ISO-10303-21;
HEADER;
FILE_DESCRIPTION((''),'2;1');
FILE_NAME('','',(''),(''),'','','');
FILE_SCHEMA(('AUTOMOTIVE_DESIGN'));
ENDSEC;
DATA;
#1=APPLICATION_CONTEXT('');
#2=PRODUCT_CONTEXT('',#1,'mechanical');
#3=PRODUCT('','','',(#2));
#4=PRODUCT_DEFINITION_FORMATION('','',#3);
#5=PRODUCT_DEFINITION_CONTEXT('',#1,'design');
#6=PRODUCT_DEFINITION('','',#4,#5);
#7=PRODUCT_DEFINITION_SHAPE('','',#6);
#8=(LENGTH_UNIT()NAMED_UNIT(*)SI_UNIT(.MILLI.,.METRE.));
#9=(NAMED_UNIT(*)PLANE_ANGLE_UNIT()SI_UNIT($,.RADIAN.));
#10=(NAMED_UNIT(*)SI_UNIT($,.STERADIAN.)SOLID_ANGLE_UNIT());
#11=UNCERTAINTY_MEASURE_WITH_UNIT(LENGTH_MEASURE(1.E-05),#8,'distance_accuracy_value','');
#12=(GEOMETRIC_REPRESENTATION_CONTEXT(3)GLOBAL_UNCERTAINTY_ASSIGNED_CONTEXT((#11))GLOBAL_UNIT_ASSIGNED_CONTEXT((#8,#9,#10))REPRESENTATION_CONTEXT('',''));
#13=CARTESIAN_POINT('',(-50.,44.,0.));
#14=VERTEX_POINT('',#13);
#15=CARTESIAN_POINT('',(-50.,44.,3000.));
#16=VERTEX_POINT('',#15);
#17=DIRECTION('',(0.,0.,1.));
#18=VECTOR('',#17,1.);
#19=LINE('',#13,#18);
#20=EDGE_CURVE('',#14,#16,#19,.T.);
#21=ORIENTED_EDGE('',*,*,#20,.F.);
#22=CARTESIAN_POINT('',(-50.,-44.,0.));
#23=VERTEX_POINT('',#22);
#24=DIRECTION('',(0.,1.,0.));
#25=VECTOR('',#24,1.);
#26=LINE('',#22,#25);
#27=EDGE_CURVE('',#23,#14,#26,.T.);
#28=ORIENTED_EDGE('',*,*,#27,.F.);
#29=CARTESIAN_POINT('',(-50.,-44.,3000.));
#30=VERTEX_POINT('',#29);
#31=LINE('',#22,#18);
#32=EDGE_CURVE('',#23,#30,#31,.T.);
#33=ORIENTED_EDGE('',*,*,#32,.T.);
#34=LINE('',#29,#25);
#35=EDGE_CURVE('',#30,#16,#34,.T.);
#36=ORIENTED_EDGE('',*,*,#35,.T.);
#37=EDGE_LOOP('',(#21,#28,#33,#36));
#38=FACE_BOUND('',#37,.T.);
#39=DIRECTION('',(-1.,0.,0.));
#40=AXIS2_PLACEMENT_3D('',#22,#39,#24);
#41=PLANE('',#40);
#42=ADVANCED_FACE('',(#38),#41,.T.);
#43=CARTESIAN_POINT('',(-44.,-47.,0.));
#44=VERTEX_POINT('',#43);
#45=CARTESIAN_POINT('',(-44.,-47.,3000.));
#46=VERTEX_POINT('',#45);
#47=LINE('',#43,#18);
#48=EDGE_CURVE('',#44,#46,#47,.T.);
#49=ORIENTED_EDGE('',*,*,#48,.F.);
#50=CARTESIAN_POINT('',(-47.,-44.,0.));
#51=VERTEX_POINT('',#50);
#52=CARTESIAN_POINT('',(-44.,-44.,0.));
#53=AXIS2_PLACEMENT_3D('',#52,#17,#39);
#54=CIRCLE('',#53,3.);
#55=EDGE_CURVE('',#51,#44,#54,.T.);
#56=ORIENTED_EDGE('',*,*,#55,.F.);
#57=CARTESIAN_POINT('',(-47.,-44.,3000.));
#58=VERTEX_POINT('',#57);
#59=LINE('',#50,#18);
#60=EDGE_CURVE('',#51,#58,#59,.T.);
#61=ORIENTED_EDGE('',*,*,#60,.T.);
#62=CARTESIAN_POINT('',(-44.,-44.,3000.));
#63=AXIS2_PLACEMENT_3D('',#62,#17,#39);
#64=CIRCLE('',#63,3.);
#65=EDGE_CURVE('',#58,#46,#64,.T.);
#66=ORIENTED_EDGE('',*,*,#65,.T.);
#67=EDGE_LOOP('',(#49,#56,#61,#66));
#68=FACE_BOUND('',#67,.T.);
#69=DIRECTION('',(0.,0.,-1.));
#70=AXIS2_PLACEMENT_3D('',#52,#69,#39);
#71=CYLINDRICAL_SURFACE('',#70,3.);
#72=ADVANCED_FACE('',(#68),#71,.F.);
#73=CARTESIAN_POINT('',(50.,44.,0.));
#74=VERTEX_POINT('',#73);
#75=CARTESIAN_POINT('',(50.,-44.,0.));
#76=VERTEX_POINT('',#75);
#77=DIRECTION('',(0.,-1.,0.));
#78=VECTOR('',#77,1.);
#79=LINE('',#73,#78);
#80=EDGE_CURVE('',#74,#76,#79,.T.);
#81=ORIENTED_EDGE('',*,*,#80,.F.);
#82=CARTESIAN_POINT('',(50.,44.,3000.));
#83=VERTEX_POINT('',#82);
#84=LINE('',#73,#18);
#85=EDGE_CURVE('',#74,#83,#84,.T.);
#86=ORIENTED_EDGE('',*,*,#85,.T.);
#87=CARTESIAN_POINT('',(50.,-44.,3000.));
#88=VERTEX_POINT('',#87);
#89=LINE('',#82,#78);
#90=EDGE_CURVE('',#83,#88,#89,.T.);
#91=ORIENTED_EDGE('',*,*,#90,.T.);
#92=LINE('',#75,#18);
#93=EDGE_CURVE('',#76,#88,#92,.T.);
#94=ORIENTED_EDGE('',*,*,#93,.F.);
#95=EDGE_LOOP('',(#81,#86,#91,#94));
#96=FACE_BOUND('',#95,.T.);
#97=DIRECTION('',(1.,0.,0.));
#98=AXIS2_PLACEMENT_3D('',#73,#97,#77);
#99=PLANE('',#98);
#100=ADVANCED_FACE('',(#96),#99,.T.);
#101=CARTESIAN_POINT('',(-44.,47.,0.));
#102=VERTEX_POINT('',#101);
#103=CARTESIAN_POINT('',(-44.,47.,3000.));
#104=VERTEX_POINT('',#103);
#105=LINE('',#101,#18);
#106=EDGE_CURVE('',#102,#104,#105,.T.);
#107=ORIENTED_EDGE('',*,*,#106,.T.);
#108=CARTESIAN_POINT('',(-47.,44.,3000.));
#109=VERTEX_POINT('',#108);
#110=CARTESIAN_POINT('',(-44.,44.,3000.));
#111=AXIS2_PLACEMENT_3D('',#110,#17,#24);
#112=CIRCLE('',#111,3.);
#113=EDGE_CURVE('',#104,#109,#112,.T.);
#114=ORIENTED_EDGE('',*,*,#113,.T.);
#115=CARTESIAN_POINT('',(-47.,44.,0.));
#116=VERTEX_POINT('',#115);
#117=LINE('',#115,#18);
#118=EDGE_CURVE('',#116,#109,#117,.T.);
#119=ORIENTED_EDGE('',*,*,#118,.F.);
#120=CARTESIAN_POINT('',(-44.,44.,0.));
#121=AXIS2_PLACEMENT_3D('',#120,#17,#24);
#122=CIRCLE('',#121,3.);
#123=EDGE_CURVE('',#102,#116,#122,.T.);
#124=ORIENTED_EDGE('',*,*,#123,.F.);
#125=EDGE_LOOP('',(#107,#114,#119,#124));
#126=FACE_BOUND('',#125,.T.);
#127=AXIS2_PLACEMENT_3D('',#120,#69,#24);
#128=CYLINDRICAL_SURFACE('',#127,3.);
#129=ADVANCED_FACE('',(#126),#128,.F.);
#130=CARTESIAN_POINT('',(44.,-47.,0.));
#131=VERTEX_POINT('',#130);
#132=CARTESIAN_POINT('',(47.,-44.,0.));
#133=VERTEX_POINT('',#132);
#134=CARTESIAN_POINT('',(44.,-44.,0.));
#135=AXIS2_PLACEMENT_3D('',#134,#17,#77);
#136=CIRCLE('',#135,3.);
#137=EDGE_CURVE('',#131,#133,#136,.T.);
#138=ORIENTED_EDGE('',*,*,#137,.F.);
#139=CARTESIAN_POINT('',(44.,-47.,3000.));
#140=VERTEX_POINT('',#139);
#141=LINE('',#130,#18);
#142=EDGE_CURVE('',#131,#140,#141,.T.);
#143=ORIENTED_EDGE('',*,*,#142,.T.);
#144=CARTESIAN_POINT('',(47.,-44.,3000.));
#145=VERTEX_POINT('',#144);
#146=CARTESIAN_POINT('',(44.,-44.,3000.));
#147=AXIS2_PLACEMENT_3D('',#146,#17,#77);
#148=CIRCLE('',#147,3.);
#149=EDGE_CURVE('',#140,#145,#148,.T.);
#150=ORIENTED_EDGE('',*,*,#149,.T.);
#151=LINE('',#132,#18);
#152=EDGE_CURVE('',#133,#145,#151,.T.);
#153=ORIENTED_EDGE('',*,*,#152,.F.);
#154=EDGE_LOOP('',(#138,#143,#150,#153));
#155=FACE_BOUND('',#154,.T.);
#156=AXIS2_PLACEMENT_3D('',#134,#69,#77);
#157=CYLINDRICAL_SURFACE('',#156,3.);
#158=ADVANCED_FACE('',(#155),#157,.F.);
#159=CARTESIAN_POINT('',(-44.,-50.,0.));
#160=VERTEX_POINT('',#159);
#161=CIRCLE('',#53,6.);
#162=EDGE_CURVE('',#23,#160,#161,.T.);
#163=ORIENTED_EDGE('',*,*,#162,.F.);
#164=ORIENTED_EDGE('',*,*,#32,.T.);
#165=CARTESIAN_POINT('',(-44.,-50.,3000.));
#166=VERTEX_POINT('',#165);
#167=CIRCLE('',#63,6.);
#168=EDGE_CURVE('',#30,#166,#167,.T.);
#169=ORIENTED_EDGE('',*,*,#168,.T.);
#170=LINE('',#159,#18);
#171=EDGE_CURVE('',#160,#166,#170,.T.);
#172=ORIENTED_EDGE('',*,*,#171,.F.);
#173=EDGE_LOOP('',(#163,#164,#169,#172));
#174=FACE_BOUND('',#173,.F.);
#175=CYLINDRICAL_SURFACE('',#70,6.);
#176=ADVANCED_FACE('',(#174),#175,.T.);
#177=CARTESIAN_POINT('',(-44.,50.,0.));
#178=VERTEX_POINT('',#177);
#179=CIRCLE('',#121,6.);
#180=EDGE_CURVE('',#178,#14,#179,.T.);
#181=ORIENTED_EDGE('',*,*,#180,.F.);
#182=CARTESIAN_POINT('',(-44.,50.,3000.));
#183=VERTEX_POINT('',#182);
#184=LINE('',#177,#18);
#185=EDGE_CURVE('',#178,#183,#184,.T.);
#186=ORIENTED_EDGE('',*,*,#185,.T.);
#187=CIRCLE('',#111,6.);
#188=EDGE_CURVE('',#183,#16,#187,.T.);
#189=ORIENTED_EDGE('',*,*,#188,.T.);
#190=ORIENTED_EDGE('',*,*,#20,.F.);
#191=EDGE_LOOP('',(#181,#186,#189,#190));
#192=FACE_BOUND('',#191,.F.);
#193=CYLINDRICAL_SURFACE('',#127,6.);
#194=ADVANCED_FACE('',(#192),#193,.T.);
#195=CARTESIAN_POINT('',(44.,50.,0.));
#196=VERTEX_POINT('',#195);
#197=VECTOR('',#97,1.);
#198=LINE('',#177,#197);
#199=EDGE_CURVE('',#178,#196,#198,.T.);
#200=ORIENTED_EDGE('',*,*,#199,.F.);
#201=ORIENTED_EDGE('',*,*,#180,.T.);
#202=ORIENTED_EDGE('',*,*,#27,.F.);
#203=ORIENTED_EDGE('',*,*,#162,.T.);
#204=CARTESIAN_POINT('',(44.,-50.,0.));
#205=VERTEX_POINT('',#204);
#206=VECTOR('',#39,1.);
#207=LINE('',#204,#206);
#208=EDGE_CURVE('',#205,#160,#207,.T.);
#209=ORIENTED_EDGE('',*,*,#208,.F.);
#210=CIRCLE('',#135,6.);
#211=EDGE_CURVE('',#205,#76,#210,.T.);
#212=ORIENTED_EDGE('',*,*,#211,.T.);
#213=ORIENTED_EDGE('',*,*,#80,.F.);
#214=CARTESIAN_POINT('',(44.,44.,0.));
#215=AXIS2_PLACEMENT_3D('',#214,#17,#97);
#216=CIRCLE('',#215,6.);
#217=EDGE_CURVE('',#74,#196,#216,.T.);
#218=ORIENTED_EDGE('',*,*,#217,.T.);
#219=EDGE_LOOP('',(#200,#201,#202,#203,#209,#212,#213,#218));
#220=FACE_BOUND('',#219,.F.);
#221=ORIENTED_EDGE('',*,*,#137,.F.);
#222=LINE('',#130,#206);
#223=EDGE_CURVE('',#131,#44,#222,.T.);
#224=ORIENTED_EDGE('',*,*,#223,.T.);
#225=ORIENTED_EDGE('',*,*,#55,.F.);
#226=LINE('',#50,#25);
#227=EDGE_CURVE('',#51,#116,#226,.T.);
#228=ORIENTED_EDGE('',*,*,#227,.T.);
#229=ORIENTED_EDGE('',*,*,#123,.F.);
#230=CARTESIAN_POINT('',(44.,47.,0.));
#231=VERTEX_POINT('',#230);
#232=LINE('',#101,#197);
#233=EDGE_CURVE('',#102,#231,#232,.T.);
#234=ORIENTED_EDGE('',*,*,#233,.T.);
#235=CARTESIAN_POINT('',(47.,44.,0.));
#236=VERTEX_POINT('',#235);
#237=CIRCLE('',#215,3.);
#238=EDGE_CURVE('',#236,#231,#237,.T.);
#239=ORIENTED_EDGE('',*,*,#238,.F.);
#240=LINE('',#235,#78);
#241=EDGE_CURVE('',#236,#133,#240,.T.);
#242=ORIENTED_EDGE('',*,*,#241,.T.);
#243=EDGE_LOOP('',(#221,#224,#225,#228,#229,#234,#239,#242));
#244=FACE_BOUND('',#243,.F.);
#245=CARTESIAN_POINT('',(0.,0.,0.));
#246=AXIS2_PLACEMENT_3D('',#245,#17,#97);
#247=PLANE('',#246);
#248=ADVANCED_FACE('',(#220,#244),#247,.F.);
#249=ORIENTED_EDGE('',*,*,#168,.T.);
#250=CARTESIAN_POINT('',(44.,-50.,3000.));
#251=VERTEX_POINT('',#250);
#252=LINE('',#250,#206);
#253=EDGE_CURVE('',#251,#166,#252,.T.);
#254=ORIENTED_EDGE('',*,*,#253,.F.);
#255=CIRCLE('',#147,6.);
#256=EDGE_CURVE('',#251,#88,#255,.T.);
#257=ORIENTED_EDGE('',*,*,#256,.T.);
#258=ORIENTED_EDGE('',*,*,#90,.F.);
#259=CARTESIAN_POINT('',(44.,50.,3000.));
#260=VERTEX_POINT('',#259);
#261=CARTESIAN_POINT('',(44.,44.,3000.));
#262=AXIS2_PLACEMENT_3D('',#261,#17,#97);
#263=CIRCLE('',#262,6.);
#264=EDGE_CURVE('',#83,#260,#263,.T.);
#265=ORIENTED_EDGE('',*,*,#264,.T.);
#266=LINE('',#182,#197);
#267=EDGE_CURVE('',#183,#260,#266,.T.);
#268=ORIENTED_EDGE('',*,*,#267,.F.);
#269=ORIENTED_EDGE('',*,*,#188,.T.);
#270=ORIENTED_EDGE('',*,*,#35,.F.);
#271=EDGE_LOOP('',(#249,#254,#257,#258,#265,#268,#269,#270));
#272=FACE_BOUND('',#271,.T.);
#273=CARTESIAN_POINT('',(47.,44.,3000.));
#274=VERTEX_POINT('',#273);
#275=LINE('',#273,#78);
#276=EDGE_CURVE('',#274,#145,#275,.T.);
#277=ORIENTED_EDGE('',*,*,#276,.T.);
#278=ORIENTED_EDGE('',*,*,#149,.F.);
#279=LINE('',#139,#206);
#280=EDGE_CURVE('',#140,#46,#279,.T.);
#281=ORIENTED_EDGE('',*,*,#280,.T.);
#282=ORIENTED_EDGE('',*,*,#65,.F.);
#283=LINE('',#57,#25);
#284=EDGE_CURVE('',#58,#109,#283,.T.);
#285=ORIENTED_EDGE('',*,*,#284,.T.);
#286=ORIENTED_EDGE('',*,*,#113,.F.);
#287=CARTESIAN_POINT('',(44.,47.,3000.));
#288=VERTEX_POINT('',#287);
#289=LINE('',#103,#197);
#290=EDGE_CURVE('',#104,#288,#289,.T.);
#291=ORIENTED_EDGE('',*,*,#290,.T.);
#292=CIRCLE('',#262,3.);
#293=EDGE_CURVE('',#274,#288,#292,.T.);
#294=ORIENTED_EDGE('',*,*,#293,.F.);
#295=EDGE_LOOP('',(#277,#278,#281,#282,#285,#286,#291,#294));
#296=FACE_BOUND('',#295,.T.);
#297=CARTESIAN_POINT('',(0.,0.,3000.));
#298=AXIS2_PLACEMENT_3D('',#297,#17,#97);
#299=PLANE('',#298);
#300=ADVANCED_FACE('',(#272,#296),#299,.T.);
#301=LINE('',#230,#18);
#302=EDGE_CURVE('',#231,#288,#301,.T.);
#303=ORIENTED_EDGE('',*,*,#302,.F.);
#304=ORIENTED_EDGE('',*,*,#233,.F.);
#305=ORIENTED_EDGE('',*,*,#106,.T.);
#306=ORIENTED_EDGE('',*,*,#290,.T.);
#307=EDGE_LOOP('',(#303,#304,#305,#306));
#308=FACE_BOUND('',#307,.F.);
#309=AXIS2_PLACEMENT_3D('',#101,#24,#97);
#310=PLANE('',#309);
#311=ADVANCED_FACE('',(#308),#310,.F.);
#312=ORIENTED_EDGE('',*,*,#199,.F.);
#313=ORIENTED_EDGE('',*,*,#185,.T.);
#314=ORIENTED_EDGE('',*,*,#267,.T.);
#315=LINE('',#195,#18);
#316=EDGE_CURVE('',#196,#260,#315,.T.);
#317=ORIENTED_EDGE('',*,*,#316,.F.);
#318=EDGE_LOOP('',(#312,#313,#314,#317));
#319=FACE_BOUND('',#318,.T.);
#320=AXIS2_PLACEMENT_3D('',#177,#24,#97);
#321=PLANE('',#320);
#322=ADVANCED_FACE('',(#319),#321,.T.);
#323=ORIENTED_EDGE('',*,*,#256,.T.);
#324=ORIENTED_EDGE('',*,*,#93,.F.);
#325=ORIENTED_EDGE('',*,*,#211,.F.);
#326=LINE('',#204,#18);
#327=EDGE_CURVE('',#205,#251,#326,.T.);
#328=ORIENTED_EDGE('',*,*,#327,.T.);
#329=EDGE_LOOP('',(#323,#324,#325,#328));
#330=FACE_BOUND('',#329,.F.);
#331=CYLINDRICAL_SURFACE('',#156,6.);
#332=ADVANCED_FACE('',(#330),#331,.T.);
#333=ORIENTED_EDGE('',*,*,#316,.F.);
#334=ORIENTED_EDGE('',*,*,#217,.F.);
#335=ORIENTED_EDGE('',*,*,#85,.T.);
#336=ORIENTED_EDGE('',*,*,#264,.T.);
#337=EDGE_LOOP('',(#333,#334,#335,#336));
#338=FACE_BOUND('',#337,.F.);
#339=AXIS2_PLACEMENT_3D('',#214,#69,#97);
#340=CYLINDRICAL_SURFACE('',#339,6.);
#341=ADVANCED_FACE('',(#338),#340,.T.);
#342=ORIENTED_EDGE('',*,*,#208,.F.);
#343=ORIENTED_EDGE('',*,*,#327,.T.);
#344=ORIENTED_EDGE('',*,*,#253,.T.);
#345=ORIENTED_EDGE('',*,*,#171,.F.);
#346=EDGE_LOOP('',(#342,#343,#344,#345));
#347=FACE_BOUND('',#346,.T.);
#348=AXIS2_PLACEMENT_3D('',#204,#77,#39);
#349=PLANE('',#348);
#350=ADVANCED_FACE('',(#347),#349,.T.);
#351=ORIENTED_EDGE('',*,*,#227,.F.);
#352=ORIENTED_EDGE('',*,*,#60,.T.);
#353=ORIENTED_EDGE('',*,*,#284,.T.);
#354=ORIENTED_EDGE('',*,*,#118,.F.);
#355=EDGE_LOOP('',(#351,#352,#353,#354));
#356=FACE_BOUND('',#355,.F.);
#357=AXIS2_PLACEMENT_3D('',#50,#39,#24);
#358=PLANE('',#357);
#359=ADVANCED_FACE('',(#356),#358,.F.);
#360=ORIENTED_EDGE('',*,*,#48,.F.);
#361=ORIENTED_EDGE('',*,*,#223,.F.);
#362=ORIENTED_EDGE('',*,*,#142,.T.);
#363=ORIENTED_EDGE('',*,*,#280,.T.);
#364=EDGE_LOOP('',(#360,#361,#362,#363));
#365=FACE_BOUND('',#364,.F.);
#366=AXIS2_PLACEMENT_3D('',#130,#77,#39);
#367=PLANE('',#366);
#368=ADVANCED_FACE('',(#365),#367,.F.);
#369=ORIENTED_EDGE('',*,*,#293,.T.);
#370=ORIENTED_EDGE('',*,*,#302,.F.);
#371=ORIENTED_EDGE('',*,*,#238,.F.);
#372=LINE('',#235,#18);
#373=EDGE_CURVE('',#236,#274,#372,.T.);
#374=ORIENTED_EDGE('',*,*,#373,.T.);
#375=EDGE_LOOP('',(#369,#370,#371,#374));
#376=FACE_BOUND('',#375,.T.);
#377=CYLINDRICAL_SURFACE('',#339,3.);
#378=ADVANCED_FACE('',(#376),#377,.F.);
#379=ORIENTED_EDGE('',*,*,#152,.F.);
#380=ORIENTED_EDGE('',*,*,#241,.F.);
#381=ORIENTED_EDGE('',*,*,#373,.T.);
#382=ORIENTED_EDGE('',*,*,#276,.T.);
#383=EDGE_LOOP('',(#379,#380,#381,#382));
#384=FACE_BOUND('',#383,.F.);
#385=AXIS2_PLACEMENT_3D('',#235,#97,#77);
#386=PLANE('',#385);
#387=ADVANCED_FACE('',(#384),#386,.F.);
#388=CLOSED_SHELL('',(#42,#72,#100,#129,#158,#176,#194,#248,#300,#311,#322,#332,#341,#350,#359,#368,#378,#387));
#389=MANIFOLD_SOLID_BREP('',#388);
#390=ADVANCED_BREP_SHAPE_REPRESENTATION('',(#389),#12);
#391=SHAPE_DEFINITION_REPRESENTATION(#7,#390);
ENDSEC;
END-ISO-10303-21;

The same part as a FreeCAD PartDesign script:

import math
import FreeCAD as App
import Part
import Sketcher
from FreeCAD import Vector
Q = App.Units.Quantity

doc = App.newDocument("Part")
body = doc.addObject("PartDesign::Body", "Body")

sketch1 = doc.addObject("Sketcher::SketchObject", "Sketch")
body.addObject(sketch1)
sketch1.AttachmentSupport = (doc.XY_Plane, [""])
sketch1.MapMode = "FlatFace"
sketch1.addGeometry(Part.LineSegment(Vector(-50, 44, 0), Vector(-50, -44, 0)), False)
sketch1.addGeometry(Part.ArcOfCircle(Part.Circle(Vector(-44, -44, 0), Vector(0, 0, 1), 6), math.radians(180), math.radians(270)), False)
sketch1.addGeometry(Part.LineSegment(Vector(-44, -50, 0), Vector(44, -50, 0)), False)
sketch1.addGeometry(Part.ArcOfCircle(Part.Circle(Vector(44, -44, 0), Vector(0, 0, 1), 6), math.radians(-90), math.radians(0)), False)
sketch1.addGeometry(Part.LineSegment(Vector(50, -44, 0), Vector(50, 44, 0)), False)
sketch1.addGeometry(Part.ArcOfCircle(Part.Circle(Vector(44, 44, 0), Vector(0, 0, 1), 6), math.radians(0), math.radians(90)), False)
sketch1.addGeometry(Part.LineSegment(Vector(44, 50, 0), Vector(-44, 50, 0)), False)
sketch1.addGeometry(Part.ArcOfCircle(Part.Circle(Vector(-44, 44, 0), Vector(0, 0, 1), 6), math.radians(90), math.radians(180)), False)
sketch1.addGeometry(Part.ArcOfCircle(Part.Circle(Vector(-44, 44, 0), Vector(0, 0, 1), 3), math.radians(90), math.radians(180)), False)
sketch1.addGeometry(Part.LineSegment(Vector(-44, 47, 0), Vector(44, 47, 0)), False)
sketch1.addGeometry(Part.ArcOfCircle(Part.Circle(Vector(44, 44, 0), Vector(0, 0, 1), 3), math.radians(0), math.radians(90)), False)
sketch1.addGeometry(Part.LineSegment(Vector(47, 44, 0), Vector(47, -44, 0)), False)
sketch1.addGeometry(Part.ArcOfCircle(Part.Circle(Vector(44, -44, 0), Vector(0, 0, 1), 3), math.radians(-90), math.radians(0)), False)
sketch1.addGeometry(Part.LineSegment(Vector(44, -47, 0), Vector(-44, -47, 0)), False)
sketch1.addGeometry(Part.ArcOfCircle(Part.Circle(Vector(-44, -44, 0), Vector(0, 0, 1), 3), math.radians(180), math.radians(270)), False)
sketch1.addGeometry(Part.LineSegment(Vector(-47, -44, 0), Vector(-47, 44, 0)), False)
sketch1.addConstraint(Sketcher.Constraint("Tangent", 0, 2, 1, 1))
sketch1.addConstraint(Sketcher.Constraint("Tangent", 1, 2, 2, 1))
sketch1.addConstraint(Sketcher.Constraint("Tangent", 2, 2, 3, 1))
sketch1.addConstraint(Sketcher.Constraint("Tangent", 3, 2, 4, 1))
sketch1.addConstraint(Sketcher.Constraint("Tangent", 4, 2, 5, 1))
sketch1.addConstraint(Sketcher.Constraint("Tangent", 5, 2, 6, 1))
sketch1.addConstraint(Sketcher.Constraint("Tangent", 6, 2, 7, 1))
sketch1.addConstraint(Sketcher.Constraint("Tangent", 7, 2, 0, 1))
sketch1.addConstraint(Sketcher.Constraint("Tangent", 8, 1, 9, 1))
sketch1.addConstraint(Sketcher.Constraint("Tangent", 9, 2, 10, 2))
sketch1.addConstraint(Sketcher.Constraint("Tangent", 10, 1, 11, 1))
sketch1.addConstraint(Sketcher.Constraint("Tangent", 11, 2, 12, 2))
sketch1.addConstraint(Sketcher.Constraint("Tangent", 12, 1, 13, 1))
sketch1.addConstraint(Sketcher.Constraint("Tangent", 13, 2, 14, 2))
sketch1.addConstraint(Sketcher.Constraint("Tangent", 14, 1, 15, 1))
sketch1.addConstraint(Sketcher.Constraint("Tangent", 15, 2, 8, 2))
sketch1.addConstraint(Sketcher.Constraint("Vertical", 0))
sketch1.addConstraint(Sketcher.Constraint("Horizontal", 2))
sketch1.addConstraint(Sketcher.Constraint("Vertical", 4))
sketch1.addConstraint(Sketcher.Constraint("Horizontal", 6))
sketch1.addConstraint(Sketcher.Constraint("Horizontal", 9))
sketch1.addConstraint(Sketcher.Constraint("Vertical", 11))
sketch1.addConstraint(Sketcher.Constraint("Horizontal", 13))
sketch1.addConstraint(Sketcher.Constraint("Vertical", 15))
sketch1.addConstraint(Sketcher.Constraint("Coincident", 8, 3, 7, 3))
sketch1.addConstraint(Sketcher.Constraint("Coincident", 10, 3, 5, 3))
sketch1.addConstraint(Sketcher.Constraint("Coincident", 12, 3, 3, 3))
sketch1.addConstraint(Sketcher.Constraint("Equal", 1, 3))
sketch1.addConstraint(Sketcher.Constraint("Equal", 3, 5))
sketch1.addConstraint(Sketcher.Constraint("Equal", 5, 7))
sketch1.addConstraint(Sketcher.Constraint("Equal", 12, 14))
sketch1.addConstraint(Sketcher.Constraint("Symmetric", 1, 3, 5, 3, -1, 1))
sketch1.addConstraint(Sketcher.Constraint("Equal", 13, 0))
sketch1.addConstraint(Sketcher.Constraint("Radius", 1, Q("6 mm")))
sketch1.addConstraint(Sketcher.Constraint("Radius", 8, Q("3 mm")))
sketch1.addConstraint(Sketcher.Constraint("DistanceX", 0, 2, -1, 1, Q("50 mm")))
pad1 = doc.addObject("PartDesign::Pad", "Pad")
body.addObject(pad1)
pad1.Profile = sketch1
pad1.Length = 3000

doc.recompute()
